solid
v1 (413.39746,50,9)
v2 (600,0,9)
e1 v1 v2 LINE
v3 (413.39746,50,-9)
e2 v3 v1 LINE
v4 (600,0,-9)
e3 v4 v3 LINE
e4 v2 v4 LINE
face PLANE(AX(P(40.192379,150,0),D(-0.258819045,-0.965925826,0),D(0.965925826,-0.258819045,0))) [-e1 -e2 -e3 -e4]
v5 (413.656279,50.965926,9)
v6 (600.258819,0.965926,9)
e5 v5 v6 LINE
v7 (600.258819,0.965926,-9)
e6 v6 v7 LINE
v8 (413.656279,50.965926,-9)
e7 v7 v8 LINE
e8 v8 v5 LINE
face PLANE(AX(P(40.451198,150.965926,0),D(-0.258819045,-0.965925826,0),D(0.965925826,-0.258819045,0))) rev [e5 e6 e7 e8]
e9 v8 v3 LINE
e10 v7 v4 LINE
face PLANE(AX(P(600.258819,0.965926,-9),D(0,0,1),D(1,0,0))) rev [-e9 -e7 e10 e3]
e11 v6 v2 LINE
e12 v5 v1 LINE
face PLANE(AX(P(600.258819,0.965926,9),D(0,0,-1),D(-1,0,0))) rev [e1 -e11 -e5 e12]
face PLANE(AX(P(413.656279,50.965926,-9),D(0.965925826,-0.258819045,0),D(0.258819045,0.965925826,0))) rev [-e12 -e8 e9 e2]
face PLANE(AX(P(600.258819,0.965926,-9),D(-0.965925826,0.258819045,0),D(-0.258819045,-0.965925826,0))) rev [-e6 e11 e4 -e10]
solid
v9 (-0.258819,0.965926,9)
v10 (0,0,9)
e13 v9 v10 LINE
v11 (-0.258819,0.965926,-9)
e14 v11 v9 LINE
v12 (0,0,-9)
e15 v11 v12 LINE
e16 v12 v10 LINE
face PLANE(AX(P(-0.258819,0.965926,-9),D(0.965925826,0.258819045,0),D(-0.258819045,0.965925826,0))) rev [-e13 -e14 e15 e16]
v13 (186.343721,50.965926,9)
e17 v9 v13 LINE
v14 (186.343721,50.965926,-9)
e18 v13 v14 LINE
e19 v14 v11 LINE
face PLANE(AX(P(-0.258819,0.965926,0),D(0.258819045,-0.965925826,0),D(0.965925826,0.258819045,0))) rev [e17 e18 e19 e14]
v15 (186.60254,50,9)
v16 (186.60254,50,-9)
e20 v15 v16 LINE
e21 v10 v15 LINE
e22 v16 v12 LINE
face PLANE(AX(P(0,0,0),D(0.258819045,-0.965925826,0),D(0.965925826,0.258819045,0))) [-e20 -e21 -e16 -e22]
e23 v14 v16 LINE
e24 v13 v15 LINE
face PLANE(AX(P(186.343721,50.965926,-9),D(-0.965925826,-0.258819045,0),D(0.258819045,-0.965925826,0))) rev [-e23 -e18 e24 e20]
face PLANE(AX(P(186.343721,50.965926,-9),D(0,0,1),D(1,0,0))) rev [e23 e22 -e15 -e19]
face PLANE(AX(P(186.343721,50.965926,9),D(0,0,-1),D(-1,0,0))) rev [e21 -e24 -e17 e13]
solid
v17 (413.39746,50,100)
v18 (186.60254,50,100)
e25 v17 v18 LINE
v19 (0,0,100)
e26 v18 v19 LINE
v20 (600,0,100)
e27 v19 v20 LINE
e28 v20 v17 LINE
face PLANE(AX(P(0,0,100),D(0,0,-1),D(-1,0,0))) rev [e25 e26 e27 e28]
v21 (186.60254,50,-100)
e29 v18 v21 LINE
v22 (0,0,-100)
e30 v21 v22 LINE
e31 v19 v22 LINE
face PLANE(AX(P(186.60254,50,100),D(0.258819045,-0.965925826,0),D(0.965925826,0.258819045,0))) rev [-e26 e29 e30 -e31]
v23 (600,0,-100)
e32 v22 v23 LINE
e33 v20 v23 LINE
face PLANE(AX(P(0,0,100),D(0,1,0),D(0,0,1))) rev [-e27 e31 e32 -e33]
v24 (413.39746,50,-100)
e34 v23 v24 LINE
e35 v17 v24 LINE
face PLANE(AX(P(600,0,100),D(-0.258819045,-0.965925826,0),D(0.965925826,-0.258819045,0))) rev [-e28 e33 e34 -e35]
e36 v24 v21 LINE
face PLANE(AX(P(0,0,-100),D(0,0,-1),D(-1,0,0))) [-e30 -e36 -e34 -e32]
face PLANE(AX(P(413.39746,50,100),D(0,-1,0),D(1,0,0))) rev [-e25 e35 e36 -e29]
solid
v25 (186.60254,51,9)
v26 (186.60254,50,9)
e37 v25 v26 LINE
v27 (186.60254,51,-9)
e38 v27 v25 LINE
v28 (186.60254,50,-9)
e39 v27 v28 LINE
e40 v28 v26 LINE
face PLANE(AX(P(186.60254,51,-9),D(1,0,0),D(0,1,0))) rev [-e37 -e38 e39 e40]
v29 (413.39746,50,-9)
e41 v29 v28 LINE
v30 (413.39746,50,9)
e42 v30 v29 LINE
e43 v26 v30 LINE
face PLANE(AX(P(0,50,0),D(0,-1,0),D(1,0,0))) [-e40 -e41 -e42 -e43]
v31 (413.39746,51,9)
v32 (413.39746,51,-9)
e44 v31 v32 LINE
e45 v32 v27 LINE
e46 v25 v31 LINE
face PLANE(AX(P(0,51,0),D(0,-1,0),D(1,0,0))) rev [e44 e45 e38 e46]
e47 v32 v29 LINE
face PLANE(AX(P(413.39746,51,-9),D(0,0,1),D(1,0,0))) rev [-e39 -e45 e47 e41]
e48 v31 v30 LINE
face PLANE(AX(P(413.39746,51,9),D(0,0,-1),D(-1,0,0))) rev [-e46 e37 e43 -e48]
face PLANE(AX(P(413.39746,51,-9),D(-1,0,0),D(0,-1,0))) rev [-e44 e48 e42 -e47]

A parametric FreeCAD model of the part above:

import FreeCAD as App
import Part
import Sketcher

V = App.Vector
Q = App.Units.Quantity


def add_polygon(sketch, points):
    """Adds a closed chain of lines whose ends are joined by coincident constraints."""
    first, n = sketch.GeometryCount, len(points)
    for a, b in zip(points, points[1:] + points[:1]):
        sketch.addGeometry(Part.LineSegment(App.Vector(*a, 0), App.Vector(*b, 0)), False)
    for i in range(n):
        sketch.addConstraint(Sketcher.Constraint("Coincident", first + i, 2, first + (i + 1) % n, 1))

doc = App.newDocument("Part")
body = doc.addObject("PartDesign::Body", "Body")

# Sketch on XY plane
sketch1 = doc.addObject("Sketcher::SketchObject", "Sketch")
body.addObject(sketch1)
sketch1.AttachmentSupport = (doc.XY_Plane, [""])
sketch1.MapMode = "FlatFace"
add_polygon(sketch1, [(0, 0), (600, 0), (413, 50), (187, 50)])  # lines 0-3
sketch1.addConstraint([
    Sketcher.Constraint("Horizontal", 0),
    Sketcher.Constraint("Horizontal", 2),
    Sketcher.Constraint("Coincident", 3, 2, -1, 1),
    Sketcher.Constraint("Equal", 1, 3),
    Sketcher.Constraint("DistanceX", 0, 1, 0, 2, Q("600 mm")),
    Sketcher.Constraint("Angle", 1, Q("165 deg")),
    Sketcher.Constraint("DistanceY", -1, 1, 1, 2, Q("50 mm")),
])
pad1 = doc.addObject("PartDesign::Pad", "Pad")
body.addObject(pad1)
pad1.Profile = sketch1
pad1.Length = 200
pad1.Midplane = True
body2 = doc.addObject("PartDesign::Body", "Body001")

# Sketch on an angled plane
sketch2 = doc.addObject("Sketcher::SketchObject", "Sketch001")
body2.addObject(sketch2)
sketch2.Placement = App.Placement(V(40.192379, 150, 0), App.Rotation(V(0.965925826, -0.258819045, 0), V(0, 0, -0.999999999), V(0.258819045, 0.965925826, 0), "ZXY"))
add_polygon(sketch2, [(386, 9), (386, -9), (580, -9), (580, 9)])  # lines 0-3
sketch2.addConstraint([
    Sketcher.Constraint("Vertical", 0),
    Sketcher.Constraint("Horizontal", 1),
    Sketcher.Constraint("Vertical", 2),
    Sketcher.Constraint("Horizontal", 3),
    Sketcher.Constraint("DistanceY", 0, 2, 0, 1, Q("18 mm")),
    Sketcher.Constraint("DistanceY", 0, 2, -1, 1, Q("9 mm")),
    Sketcher.Constraint("DistanceX", 1, 1, 1, 2, Q("193.185165 mm")),
    Sketcher.Constraint("DistanceX", -1, 1, 0, 2, Q("386.37033 mm")),
])
pad2 = doc.addObject("PartDesign::Pad", "Pad001")
body2.addObject(pad2)
pad2.Profile = sketch2
pad2.Length = 1
body3 = doc.addObject("PartDesign::Body", "Body002")

# Sketch on XZ plane
sketch3 = doc.addObject("Sketcher::SketchObject", "Sketch002")
body3.addObject(sketch3)
sketch3.AttachmentSupport = (doc.getObject("XZ_Plane002"), [""])
sketch3.MapMode = "FlatFace"
sketch3.AttachmentOffset = App.Placement(V(0, 0, -50), App.Rotation())
add_polygon(sketch3, [(187, -9), (187, 9), (413, 9), (413, -9)])  # lines 0-3
sketch3.addConstraint([
    Sketcher.Constraint("Vertical", 0),
    Sketcher.Constraint("Horizontal", 1),
    Sketcher.Constraint("Vertical", 2),
    Sketcher.Constraint("Horizontal", 3),
    Sketcher.Constraint("DistanceY", 0, 1, 0, 2, Q("18 mm")),
    Sketcher.Constraint("DistanceY", -1, 1, 0, 2, Q("9 mm")),
    Sketcher.Constraint("DistanceX", 1, 1, 1, 2, Q("226.794919 mm")),
    Sketcher.Constraint("DistanceX", -1, 1, 0, 2, Q("186.60254 mm")),
])
pad3 = doc.addObject("PartDesign::Pad", "Pad002")
body3.addObject(pad3)
pad3.Profile = sketch3
pad3.Length = 1
pad3.Reversed = True
body4 = doc.addObject("PartDesign::Body", "Body003")

# Sketch on an angled plane
sketch4 = doc.addObject("Sketcher::SketchObject", "Sketch003")
body4.addObject(sketch4)
sketch4.Placement = App.Placement(V(0, 0, 0), App.Rotation(V(0.965925826, 0.258819045, 0), V(0, 0, -0.999999999), V(-0.258819045, 0.965925826, 0), "ZXY"))
add_polygon(sketch4, [(0, 9), (0, -9), (193, -9), (193, 9)])  # lines 0-3
sketch4.addConstraint([
    Sketcher.Constraint("Vertical", 0),
    Sketcher.Constraint("Horizontal", 1),
    Sketcher.Constraint("Vertical", 2),
    Sketcher.Constraint("Horizontal", 3),
    Sketcher.Constraint("Symmetric", 0, 2, 3, 2, -1, 1),
    Sketcher.Constraint("DistanceY", 0, 2, 0, 1, Q("18 mm")),
    Sketcher.Constraint("DistanceX", 1, 1, 1, 2, Q("193.185165 mm")),
])
pad4 = doc.addObject("PartDesign::Pad", "Pad003")
body4.addObject(pad4)
pad4.Profile = sketch4
pad4.Length = 1

doc.recompute()
